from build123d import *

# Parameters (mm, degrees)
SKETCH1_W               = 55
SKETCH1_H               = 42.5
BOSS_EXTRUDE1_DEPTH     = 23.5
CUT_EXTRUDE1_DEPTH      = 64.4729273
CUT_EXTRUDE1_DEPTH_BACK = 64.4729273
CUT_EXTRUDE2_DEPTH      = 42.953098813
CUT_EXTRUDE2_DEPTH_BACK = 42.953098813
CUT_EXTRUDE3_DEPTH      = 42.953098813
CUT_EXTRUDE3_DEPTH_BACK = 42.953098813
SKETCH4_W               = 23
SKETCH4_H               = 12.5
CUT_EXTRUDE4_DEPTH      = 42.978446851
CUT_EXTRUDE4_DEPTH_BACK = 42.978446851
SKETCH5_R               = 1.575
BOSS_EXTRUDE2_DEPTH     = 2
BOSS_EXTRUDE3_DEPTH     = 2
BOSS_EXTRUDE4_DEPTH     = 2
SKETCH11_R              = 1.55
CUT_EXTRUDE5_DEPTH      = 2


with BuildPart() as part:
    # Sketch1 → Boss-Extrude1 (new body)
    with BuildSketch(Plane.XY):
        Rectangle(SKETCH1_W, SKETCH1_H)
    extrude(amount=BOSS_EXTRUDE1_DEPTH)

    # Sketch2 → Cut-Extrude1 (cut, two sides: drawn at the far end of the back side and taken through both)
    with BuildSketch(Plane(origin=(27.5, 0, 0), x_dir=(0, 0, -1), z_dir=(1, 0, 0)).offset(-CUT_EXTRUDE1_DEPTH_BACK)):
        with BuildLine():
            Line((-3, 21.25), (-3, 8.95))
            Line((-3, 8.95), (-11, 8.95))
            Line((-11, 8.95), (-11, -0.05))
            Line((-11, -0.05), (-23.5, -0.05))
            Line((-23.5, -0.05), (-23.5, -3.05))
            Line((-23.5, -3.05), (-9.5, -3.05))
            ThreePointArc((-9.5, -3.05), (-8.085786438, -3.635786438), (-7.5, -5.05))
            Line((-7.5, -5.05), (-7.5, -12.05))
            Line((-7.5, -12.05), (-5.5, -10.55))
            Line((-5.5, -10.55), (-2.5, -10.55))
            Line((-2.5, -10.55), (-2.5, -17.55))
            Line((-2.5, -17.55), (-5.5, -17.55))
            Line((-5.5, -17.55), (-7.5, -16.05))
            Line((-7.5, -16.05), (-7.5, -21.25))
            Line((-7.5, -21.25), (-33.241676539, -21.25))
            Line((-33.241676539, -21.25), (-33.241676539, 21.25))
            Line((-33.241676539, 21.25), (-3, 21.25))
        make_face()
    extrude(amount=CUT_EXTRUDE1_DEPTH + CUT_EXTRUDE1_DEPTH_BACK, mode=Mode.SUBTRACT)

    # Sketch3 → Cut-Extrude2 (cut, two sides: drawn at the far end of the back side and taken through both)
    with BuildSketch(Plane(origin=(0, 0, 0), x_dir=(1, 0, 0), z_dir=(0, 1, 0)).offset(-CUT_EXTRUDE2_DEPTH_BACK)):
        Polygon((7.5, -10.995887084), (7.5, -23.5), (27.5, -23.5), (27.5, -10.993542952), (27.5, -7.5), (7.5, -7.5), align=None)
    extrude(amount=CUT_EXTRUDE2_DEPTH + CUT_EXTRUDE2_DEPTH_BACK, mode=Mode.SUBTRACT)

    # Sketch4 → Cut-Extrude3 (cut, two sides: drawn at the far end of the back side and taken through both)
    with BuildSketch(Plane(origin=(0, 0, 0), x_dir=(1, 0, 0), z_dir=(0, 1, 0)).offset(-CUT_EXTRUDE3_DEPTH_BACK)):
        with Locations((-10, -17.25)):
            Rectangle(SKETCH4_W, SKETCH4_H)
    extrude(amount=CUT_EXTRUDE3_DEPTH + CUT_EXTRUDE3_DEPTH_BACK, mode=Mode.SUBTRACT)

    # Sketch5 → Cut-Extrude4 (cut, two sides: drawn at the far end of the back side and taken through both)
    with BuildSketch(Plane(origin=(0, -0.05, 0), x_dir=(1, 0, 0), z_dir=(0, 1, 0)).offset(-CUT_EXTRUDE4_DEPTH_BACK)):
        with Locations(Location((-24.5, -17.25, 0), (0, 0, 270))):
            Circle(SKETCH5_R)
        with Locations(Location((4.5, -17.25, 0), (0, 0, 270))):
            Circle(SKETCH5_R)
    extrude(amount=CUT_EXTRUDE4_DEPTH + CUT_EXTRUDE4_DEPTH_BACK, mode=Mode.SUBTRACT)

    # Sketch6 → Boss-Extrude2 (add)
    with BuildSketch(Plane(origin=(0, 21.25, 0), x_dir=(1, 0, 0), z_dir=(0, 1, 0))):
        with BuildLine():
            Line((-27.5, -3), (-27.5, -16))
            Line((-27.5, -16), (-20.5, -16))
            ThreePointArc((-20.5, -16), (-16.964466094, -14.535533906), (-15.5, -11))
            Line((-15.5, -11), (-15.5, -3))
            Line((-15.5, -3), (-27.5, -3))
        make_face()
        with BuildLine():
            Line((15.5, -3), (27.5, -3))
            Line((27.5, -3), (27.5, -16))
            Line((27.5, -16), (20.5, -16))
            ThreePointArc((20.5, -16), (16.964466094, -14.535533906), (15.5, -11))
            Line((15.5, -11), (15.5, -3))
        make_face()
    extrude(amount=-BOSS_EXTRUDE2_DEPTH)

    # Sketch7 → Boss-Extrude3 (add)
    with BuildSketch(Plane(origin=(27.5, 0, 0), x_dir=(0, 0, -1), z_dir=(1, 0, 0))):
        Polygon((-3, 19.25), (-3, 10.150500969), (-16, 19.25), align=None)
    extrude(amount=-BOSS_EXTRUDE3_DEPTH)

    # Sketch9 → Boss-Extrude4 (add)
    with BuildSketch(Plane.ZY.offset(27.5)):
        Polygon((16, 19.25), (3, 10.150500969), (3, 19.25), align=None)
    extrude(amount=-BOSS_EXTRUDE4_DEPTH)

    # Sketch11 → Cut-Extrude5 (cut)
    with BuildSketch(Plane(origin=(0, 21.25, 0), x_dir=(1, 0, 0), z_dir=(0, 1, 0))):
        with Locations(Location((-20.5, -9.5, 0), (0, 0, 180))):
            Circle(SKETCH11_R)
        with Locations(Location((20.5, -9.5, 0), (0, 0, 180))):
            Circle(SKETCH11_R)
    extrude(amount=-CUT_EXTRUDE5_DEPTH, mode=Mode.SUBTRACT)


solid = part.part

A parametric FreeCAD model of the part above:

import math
import FreeCAD as App
import Part
import Sketcher
from FreeCAD import Vector


def add_polygon(sketch, points):
    """Adds a closed chain of lines whose ends are joined by coincident constraints."""
    first, n = sketch.GeometryCount, len(points)
    for a, b in zip(points, points[1:] + points[:1]):
        sketch.addGeometry(Part.LineSegment(App.Vector(*a, 0), App.Vector(*b, 0)), False)
    for i in range(n):
        sketch.addConstraint(Sketcher.Constraint("Coincident", first + i, 2, first + (i + 1) % n, 1))

doc = App.newDocument("Part")
body = doc.addObject("PartDesign::Body", "Body")

sketch1 = body.newObject("Sketcher::SketchObject", "Sketch")
sketch1.AttachmentSupport = (doc.getObject("XY_Plane"), [""])
sketch1.MapMode = "FlatFace"
add_polygon(sketch1, [(-28, 21), (-28, -21), (28, -21), (28, 21)])
sketch1.addConstraint(Sketcher.Constraint("Vertical", 0))
sketch1.addConstraint(Sketcher.Constraint("Horizontal", 1))
sketch1.addConstraint(Sketcher.Constraint("Vertical", 2))
sketch1.addConstraint(Sketcher.Constraint("Horizontal", 3))
sketch1.addConstraint(Sketcher.Constraint("Symmetric", 0, 2, 2, 2, -1, 1))
sketch1.addConstraint(Sketcher.Constraint("DistanceX", 1, 1, 1, 2, 55.0))
sketch1.addConstraint(Sketcher.Constraint("DistanceY", 0, 2, 0, 1, 42.5))
pad1 = body.newObject("PartDesign::Pad", "Pad")
pad1.Profile = sketch1
pad1.Length = 23.5

sketch2 = body.newObject("Sketcher::SketchObject", "Sketch001")
sketch2.AttachmentSupport = (doc.getObject("YZ_Plane"), [""])
sketch2.MapMode = "FlatFace"
sketch2.AttachmentOffset = App.Placement(Vector(0, 0, 27.5), App.Rotation())
sketch2.addGeometry(Part.LineSegment(Vector(8.9, 3, 0), Vector(21.2, 3, 0)), False)
sketch2.addGeometry(Part.LineSegment(Vector(21.2, 3, 0), Vector(21.2, 33.2, 0)), False)
sketch2.addGeometry(Part.LineSegment(Vector(21.2, 33.2, 0), Vector(-21.2, 33.2, 0)), False)
sketch2.addGeometry(Part.LineSegment(Vector(-21.2, 33.2, 0), Vector(-21.2, 7.5, 0)), False)
sketch2.addGeometry(Part.LineSegment(Vector(-21.2, 7.5, 0), Vector(-16.1, 7.5, 0)), False)
sketch2.addGeometry(Part.LineSegment(Vector(-16.1, 7.5, 0), Vector(-17.6, 5.5, 0)), False)
sketch2.addGeometry(Part.LineSegment(Vector(-17.6, 5.5, 0), Vector(-17.6, 2.5, 0)), False)
sketch2.addGeometry(Part.LineSegment(Vector(-17.6, 2.5, 0), Vector(-10.6, 2.5, 0)), False)
sketch2.addGeometry(Part.LineSegment(Vector(-10.6, 2.5, 0), Vector(-10.6, 5.5, 0)), False)
sketch2.addGeometry(Part.LineSegment(Vector(-10.6, 5.5, 0), Vector(-12.1, 7.5, 0)), False)
sketch2.addGeometry(Part.LineSegment(Vector(-12.1, 7.5, 0), Vector(-5, 7.5, 0)), False)
sketch2.addGeometry(Part.ArcOfCircle(Part.Circle(Vector(-5.1, 9.5, 0), Vector(0, 0, 1), 2), math.radians(-90), math.radians(0)), False)
sketch2.addGeometry(Part.LineSegment(Vector(-3, 9.5, 0), Vector(-3, 23.5, 0)), False)
sketch2.addGeometry(Part.LineSegment(Vector(-3, 23.5, 0), Vector(-0.1, 23.5, 0)), False)
sketch2.addGeometry(Part.LineSegment(Vector(-0.1, 23.5, 0), Vector(-0.1, 11, 0)), False)
sketch2.addGeometry(Part.LineSegment(Vector(-0.1, 11, 0), Vector(8.9, 11, 0)), False)
sketch2.addGeometry(Part.LineSegment(Vector(8.9, 11, 0), Vector(8.9, 3, 0)), False)
sketch2.addConstraint(Sketcher.Constraint("Coincident", 0, 2, 1, 1))
sketch2.addConstraint(Sketcher.Constraint("Coincident", 1, 2, 2, 1))
sketch2.addConstraint(Sketcher.Constraint("Coincident", 2, 2, 3, 1))
sketch2.addConstraint(Sketcher.Constraint("Coincident", 3, 2, 4, 1))
sketch2.addConstraint(Sketcher.Constraint("Coincident", 4, 2, 5, 1))
sketch2.addConstraint(Sketcher.Constraint("Coincident", 5, 2, 6, 1))
sketch2.addConstraint(Sketcher.Constraint("Coincident", 6, 2, 7, 1))
sketch2.addConstraint(Sketcher.Constraint("Coincident", 7, 2, 8, 1))
sketch2.addConstraint(Sketcher.Constraint("Coincident", 8, 2, 9, 1))
sketch2.addConstraint(Sketcher.Constraint("Coincident", 9, 2, 10, 1))
sketch2.addConstraint(Sketcher.Constraint("Tangent", 10, 2, 11, 1))
sketch2.addConstraint(Sketcher.Constraint("Tangent", 11, 2, 12, 1))
sketch2.addConstraint(Sketcher.Constraint("Coincident", 12, 2, 13, 1))
sketch2.addConstraint(Sketcher.Constraint("Coincident", 13, 2, 14, 1))
sketch2.addConstraint(Sketcher.Constraint("Coincident", 14, 2, 15, 1))
sketch2.addConstraint(Sketcher.Constraint("Coincident", 15, 2, 16, 1))
sketch2.addConstraint(Sketcher.Constraint("Coincident", 16, 2, 0, 1))
sketch2.addConstraint(Sketcher.Constraint("Horizontal", 0))
sketch2.addConstraint(Sketcher.Constraint("Vertical", 1))
sketch2.addConstraint(Sketcher.Constraint("Horizontal", 2))
sketch2.addConstraint(Sketcher.Constraint("Vertical", 3))
sketch2.addConstraint(Sketcher.Constraint("Horizontal", 4))
sketch2.addConstraint(Sketcher.Constraint("Vertical", 6))
sketch2.addConstraint(Sketcher.Constraint("Horizontal", 7))
sketch2.addConstraint(Sketcher.Constraint("Vertical", 8))
sketch2.addConstraint(Sketcher.Constraint("Horizontal", 10))
sketch2.addConstraint(Sketcher.Constraint("Vertical", 12))
sketch2.addConstraint(Sketcher.Constraint("Horizontal", 13))
sketch2.addConstraint(Sketcher.Constraint("Vertical", 14))
sketch2.addConstraint(Sketcher.Constraint("Horizontal", 15))
sketch2.addConstraint(Sketcher.Constraint("Vertical", 16))
sketch2.addConstraint(Sketcher.Constraint("Horizontal", 5, 2, 8, 2))
sketch2.addConstraint(Sketcher.Constraint("Horizontal", 4, 2, 9, 2))
sketch2.addConstraint(Sketcher.Constraint("Equal", 7, 10))
sketch2.addConstraint(Sketcher.Constraint("Equal", 13, 6))
sketch2.addConstraint(Sketcher.Constraint("Equal", 5, 9))
sketch2.addConstraint(Sketcher.Constraint("Radius", 11, 2.0))
sketch2.addConstraint(Sketcher.Constraint("DistanceX", 7, 1, 7, 2, 7.0))
sketch2.addConstraint(Sketcher.Constraint("DistanceX", 13, 1, 13, 2, 3.0))
sketch2.addConstraint(Sketcher.Constraint("DistanceX", 15, 1, 15, 2, 9.0))
sketch2.addConstraint(Sketcher.Constraint("DistanceY", 12, 1, 12, 2, 14.0))
sketch2.addConstraint(Sketcher.Constraint("DistanceY", 16, 2, 16, 1, 8.0))
sketch2.addConstraint(Sketcher.Constraint("DistanceX", 0, 1, 0, 2, 12.3))
sketch2.addConstraint(Sketcher.Constraint("DistanceX", 2, 2, 2, 1, 42.5))
sketch2.addConstraint(Sketcher.Constraint("DistanceX", 4, 1, 4, 2, 5.2))
sketch2.addConstraint(Sketcher.Constraint("DistanceY", 14, 2, 14, 1, 12.5))
sketch2.addConstraint(Sketcher.Constraint("DistanceY", -1, 1, 0, 2, 3.0))
sketch2.addConstraint(Sketcher.Constraint("DistanceY", 5, 2, 4, 2, 2.0))
sketch2.addConstraint(Sketcher.Constraint("DistanceX", 11, 3, -1, 1, 5.05))
sketch2.addConstraint(Sketcher.Constraint("DistanceY", 1, 1, 1, 2, 30.241677))
pocket1 = body.newObject("PartDesign::Pocket", "Pocket")
pocket1.Profile = sketch2
pocket1.Type = "ThroughAll"
pocket1.Midplane = True

sketch3 = body.newObject("Sketcher::SketchObject", "Sketch002")
sketch3.AttachmentSupport = (doc.getObject("XZ_Plane"), [""])
sketch3.MapMode = "FlatFace"
add_polygon(sketch3, [(8, 24), (28, 24), (28, 8), (8, 8)])
sketch3.addConstraint(Sketcher.Constraint("Horizontal", 0))
sketch3.addConstraint(Sketcher.Constraint("Vertical", 1))
sketch3.addConstraint(Sketcher.Constraint("Horizontal", 2))
sketch3.addConstraint(Sketcher.Constraint("Vertical", 3))
sketch3.addConstraint(Sketcher.Constraint("DistanceX", 0, 1, 0, 2, 20.0))
sketch3.addConstraint(Sketcher.Constraint("DistanceY", 1, 2, 1, 1, 16.0))
sketch3.addConstraint(Sketcher.Constraint("DistanceX", -1, 1, 0, 2, 27.5))
sketch3.addConstraint(Sketcher.Constraint("DistanceY", -1, 1, 0, 2, 23.5))
pocket2 = body.newObject("PartDesign::Pocket", "Pocket001")
pocket2.Profile = sketch3
pocket2.Type = "ThroughAll"
pocket2.Midplane = True

sketch4 = body.newObject("Sketcher::SketchObject", "Sketch003")
sketch4.AttachmentSupport = (doc.getObject("XZ_Plane"), [""])
sketch4.MapMode = "FlatFace"
add_polygon(sketch4, [(-22, 11), (-22, 24), (2, 24), (2, 11)])
sketch4.addConstraint(Sketcher.Constraint("Vertical", 0))
sketch4.addConstraint(Sketcher.Constraint("Horizontal", 1))
sketch4.addConstraint(Sketcher.Constraint("Vertical", 2))
sketch4.addConstraint(Sketcher.Constraint("Horizontal", 3))
sketch4.addConstraint(Sketcher.Constraint("DistanceX", 1, 1, 1, 2, 23.0))
sketch4.addConstraint(Sketcher.Constraint("DistanceY", 0, 1, 0, 2, 12.5))
sketch4.addConstraint(Sketcher.Constraint("DistanceY", -1, 1, 2, 2, 11.0))
sketch4.addConstraint(Sketcher.Constraint("DistanceX", 0, 2, -1, 1, 21.5))
pocket3 = body.newObject("PartDesign::Pocket", "Pocket002")
pocket3.Profile = sketch4
pocket3.Type = "ThroughAll"
pocket3.Midplane = True

sketch5 = body.newObject("Sketcher::SketchObject", "Sketch004")
sketch5.AttachmentSupport = (doc.getObject("XZ_Plane"), [""])
sketch5.MapMode = "FlatFace"
sketch5.AttachmentOffset = App.Placement(Vector(0, 0, 0.05), App.Rotation())
sketch5.addGeometry(Part.Circle(Vector(-24.5, 17.2, 0), Vector(0, 0, 1), 1.6), False)
sketch5.addGeometry(Part.Circle(Vector(4.5, 17.2, 0), Vector(0, 0, 1), 1.6), False)
sketch5.addConstraint(Sketcher.Constraint("Equal", 0, 1))
sketch5.addConstraint(Sketcher.Constraint("Horizontal", 0, 3, 1, 3))
sketch5.addConstraint(Sketcher.Constraint("Diameter", 0, 3.15))
sketch5.addConstraint(Sketcher.Constraint("DistanceX", 0, 3, 1, 3, 29.0))
sketch5.addConstraint(Sketcher.Constraint("DistanceX", 0, 3, -1, 1, 24.5))
sketch5.addConstraint(Sketcher.Constraint("DistanceY", -1, 1, 0, 3, 17.25))
pocket4 = body.newObject("PartDesign::Pocket", "Pocket003")
pocket4.Profile = sketch5
pocket4.Type = "ThroughAll"
pocket4.Midplane = True

sketch6 = body.newObject("Sketcher::SketchObject", "Sketch005")
sketch6.AttachmentSupport = (doc.getObject("XZ_Plane"), [""])
sketch6.MapMode = "FlatFace"
sketch6.AttachmentOffset = App.Placement(Vector(0, 0, -21.25), App.Rotation())
sketch6.addGeometry(Part.LineSegment(Vector(-28, 3, 0), Vector(-28, 16, 0)), False)
sketch6.addGeometry(Part.LineSegment(Vector(-28, 16, 0), Vector(-20, 16, 0)), False)
sketch6.addGeometry(Part.ArcOfCircle(Part.Circle(Vector(-20, 11, 0), Vector(0, 0, 1), 5), math.radians(0), math.radians(90)), False)
sketch6.addGeometry(Part.LineSegment(Vector(-16, 11, 0), Vector(-16, 3, 0)), False)
sketch6.addGeometry(Part.LineSegment(Vector(-16, 3, 0), Vector(-28, 3, 0)), False)
sketch6.addGeometry(Part.LineSegment(Vector(28, 3, 0), Vector(16, 3, 0)), False)
sketch6.addGeometry(Part.LineSegment(Vector(16, 3, 0), Vector(16, 11, 0)), False)
sketch6.addGeometry(Part.ArcOfCircle(Part.Circle(Vector(20, 11, 0), Vector(0, 0, 1), 5), math.radians(90), math.radians(180)), False)
sketch6.addGeometry(Part.LineSegment(Vector(20, 16, 0), Vector(28, 16, 0)), False)
sketch6.addGeometry(Part.LineSegment(Vector(28, 16, 0), Vector(28, 3, 0)), False)
sketch6.addConstraint(Sketcher.Constraint("Coincident", 0, 2, 1, 1))
sketch6.addConstraint(Sketcher.Constraint("Tangent", 1, 2, 2, 2))
sketch6.addConstraint(Sketcher.Constraint("Tangent", 2, 1, 3, 1))
sketch6.addConstraint(Sketcher.Constraint("Coincident", 3, 2, 4, 1))
sketch6.addConstraint(Sketcher.Constraint("Coincident", 4, 2, 0, 1))
sketch6.addConstraint(Sketcher.Constraint("Coincident", 5, 2, 6, 1))
sketch6.addConstraint(Sketcher.Constraint("Tangent", 6, 2, 7, 2))
sketch6.addConstraint(Sketcher.Constraint("Tangent", 7, 1, 8, 1))
sketch6.addConstraint(Sketcher.Constraint("Coincident", 8, 2, 9, 1))
sketch6.addConstraint(Sketcher.Constraint("Coincident", 9, 2, 5, 1))
sketch6.addConstraint(Sketcher.Constraint("Vertical", 0))
sketch6.addConstraint(Sketcher.Constraint("Horizontal", 1))
sketch6.addConstraint(Sketcher.Constraint("Vertical", 3))
sketch6.addConstraint(Sketcher.Constraint("Horizontal", 4))
sketch6.addConstraint(Sketcher.Constraint("Horizontal", 5))
sketch6.addConstraint(Sketcher.Constraint("Vertical", 6))
sketch6.addConstraint(Sketcher.Constraint("Horizontal", 8))
sketch6.addConstraint(Sketcher.Constraint("Vertical", 9))
sketch6.addConstraint(Sketcher.Constraint("Equal", 2, 7))
sketch6.addConstraint(Sketcher.Constraint("Symmetric", 2, 3, 7, 3, -2))
sketch6.addConstraint(Sketcher.Constraint("Symmetric", 4, 2, 9, 2, -2))
sketch6.addConstraint(Sketcher.Constraint("Radius", 2, 5.0))
sketch6.addConstraint(Sketcher.Constraint("DistanceX", 1, 1, 1, 2, 7.0))
sketch6.addConstraint(Sketcher.Constraint("DistanceY", 0, 1, 0, 2, 13.0))
sketch6.addConstraint(Sketcher.Constraint("DistanceY", -1, 1, 2, 3, 11.0))
sketch6.addConstraint(Sketcher.Constraint("DistanceX", 2, 3, 7, 3, 41.0))
pad2 = body.newObject("PartDesign::Pad", "Pad001")
pad2.Profile = sketch6
pad2.Length = 2

sketch7 = body.newObject("Sketcher::SketchObject", "Sketch006")
sketch7.AttachmentSupport = (doc.getObject("YZ_Plane"), [""])
sketch7.MapMode = "FlatFace"
sketch7.AttachmentOffset = App.Placement(Vector(0, 0, 27.5), App.Rotation())
add_polygon(sketch7, [(10, 3), (19, 3), (19, 16)])
sketch7.addConstraint(Sketcher.Constraint("Horizontal", 0))
sketch7.addConstraint(Sketcher.Constraint("Vertical", 1))
sketch7.addConstraint(Sketcher.Constraint("DistanceY", 1, 1, 1, 2, 13.0))
sketch7.addConstraint(Sketcher.Constraint("DistanceY", -1, 1, 0, 2, 3.0))
sketch7.addConstraint(Sketcher.Constraint("DistanceX", -1, 1, 0, 2, 19.25))
sketch7.addConstraint(Sketcher.Constraint("DistanceX", 0, 1, 0, 2, 9.099499))
pad3 = body.newObject("PartDesign::Pad", "Pad002")
pad3.Profile = sketch7
pad3.Length = 2
pad3.Reversed = True

sketch8 = body.newObject("Sketcher::SketchObject", "Sketch007")
sketch8.AttachmentSupport = (doc.getObject("YZ_Plane"), [""])
sketch8.MapMode = "FlatFace"
sketch8.AttachmentOffset = App.Placement(Vector(0, 0, -27.5), App.Rotation())
add_polygon(sketch8, [(10, 3), (19, 16), (19, 3)])
sketch8.addConstraint(Sketcher.Constraint("Vertical", 1))
sketch8.addConstraint(Sketcher.Constraint("Horizontal", 2))
sketch8.addConstraint(Sketcher.Constraint("DistanceY", 1, 2, 1, 1, 13.0))
sketch8.addConstraint(Sketcher.Constraint("DistanceY", -1, 1, 0, 2, 16.0))
sketch8.addConstraint(Sketcher.Constraint("DistanceX", -1, 1, 0, 2, 19.25))
sketch8.addConstraint(Sketcher.Constraint("DistanceX", 2, 2, 2, 1, 9.099499))
pad4 = body.newObject("PartDesign::Pad", "Pad003")
pad4.Profile = sketch8
pad4.Length = 2

sketch9 = body.newObject("Sketcher::SketchObject", "Sketch008")
sketch9.AttachmentSupport = (doc.getObject("XZ_Plane"), [""])
sketch9.MapMode = "FlatFace"
sketch9.AttachmentOffset = App.Placement(Vector(0, 0, -21.25), App.Rotation())
sketch9.addGeometry(Part.Circle(Vector(-20.5, 9.5, 0), Vector(0, 0, 1), 1.6), False)
sketch9.addGeometry(Part.Circle(Vector(20.5, 9.5, 0), Vector(0, 0, 1), 1.6), False)
sketch9.addConstraint(Sketcher.Constraint("Equal", 0, 1))
sketch9.addConstraint(Sketcher.Constraint("Symmetric", 0, 3, 1, 3, -2))
sketch9.addConstraint(Sketcher.Constraint("Diameter", 0, 3.1))
sketch9.addConstraint(Sketcher.Constraint("DistanceX", 0, 3, 1, 3, 41.0))
sketch9.addConstraint(Sketcher.Constraint("DistanceY", -1, 1, 0, 3, 9.5))
pocket5 = body.newObject("PartDesign::Pocket", "Pocket004")
pocket5.Profile = sketch9
pocket5.Length = 2
pocket5.Reversed = True

doc.recompute()
